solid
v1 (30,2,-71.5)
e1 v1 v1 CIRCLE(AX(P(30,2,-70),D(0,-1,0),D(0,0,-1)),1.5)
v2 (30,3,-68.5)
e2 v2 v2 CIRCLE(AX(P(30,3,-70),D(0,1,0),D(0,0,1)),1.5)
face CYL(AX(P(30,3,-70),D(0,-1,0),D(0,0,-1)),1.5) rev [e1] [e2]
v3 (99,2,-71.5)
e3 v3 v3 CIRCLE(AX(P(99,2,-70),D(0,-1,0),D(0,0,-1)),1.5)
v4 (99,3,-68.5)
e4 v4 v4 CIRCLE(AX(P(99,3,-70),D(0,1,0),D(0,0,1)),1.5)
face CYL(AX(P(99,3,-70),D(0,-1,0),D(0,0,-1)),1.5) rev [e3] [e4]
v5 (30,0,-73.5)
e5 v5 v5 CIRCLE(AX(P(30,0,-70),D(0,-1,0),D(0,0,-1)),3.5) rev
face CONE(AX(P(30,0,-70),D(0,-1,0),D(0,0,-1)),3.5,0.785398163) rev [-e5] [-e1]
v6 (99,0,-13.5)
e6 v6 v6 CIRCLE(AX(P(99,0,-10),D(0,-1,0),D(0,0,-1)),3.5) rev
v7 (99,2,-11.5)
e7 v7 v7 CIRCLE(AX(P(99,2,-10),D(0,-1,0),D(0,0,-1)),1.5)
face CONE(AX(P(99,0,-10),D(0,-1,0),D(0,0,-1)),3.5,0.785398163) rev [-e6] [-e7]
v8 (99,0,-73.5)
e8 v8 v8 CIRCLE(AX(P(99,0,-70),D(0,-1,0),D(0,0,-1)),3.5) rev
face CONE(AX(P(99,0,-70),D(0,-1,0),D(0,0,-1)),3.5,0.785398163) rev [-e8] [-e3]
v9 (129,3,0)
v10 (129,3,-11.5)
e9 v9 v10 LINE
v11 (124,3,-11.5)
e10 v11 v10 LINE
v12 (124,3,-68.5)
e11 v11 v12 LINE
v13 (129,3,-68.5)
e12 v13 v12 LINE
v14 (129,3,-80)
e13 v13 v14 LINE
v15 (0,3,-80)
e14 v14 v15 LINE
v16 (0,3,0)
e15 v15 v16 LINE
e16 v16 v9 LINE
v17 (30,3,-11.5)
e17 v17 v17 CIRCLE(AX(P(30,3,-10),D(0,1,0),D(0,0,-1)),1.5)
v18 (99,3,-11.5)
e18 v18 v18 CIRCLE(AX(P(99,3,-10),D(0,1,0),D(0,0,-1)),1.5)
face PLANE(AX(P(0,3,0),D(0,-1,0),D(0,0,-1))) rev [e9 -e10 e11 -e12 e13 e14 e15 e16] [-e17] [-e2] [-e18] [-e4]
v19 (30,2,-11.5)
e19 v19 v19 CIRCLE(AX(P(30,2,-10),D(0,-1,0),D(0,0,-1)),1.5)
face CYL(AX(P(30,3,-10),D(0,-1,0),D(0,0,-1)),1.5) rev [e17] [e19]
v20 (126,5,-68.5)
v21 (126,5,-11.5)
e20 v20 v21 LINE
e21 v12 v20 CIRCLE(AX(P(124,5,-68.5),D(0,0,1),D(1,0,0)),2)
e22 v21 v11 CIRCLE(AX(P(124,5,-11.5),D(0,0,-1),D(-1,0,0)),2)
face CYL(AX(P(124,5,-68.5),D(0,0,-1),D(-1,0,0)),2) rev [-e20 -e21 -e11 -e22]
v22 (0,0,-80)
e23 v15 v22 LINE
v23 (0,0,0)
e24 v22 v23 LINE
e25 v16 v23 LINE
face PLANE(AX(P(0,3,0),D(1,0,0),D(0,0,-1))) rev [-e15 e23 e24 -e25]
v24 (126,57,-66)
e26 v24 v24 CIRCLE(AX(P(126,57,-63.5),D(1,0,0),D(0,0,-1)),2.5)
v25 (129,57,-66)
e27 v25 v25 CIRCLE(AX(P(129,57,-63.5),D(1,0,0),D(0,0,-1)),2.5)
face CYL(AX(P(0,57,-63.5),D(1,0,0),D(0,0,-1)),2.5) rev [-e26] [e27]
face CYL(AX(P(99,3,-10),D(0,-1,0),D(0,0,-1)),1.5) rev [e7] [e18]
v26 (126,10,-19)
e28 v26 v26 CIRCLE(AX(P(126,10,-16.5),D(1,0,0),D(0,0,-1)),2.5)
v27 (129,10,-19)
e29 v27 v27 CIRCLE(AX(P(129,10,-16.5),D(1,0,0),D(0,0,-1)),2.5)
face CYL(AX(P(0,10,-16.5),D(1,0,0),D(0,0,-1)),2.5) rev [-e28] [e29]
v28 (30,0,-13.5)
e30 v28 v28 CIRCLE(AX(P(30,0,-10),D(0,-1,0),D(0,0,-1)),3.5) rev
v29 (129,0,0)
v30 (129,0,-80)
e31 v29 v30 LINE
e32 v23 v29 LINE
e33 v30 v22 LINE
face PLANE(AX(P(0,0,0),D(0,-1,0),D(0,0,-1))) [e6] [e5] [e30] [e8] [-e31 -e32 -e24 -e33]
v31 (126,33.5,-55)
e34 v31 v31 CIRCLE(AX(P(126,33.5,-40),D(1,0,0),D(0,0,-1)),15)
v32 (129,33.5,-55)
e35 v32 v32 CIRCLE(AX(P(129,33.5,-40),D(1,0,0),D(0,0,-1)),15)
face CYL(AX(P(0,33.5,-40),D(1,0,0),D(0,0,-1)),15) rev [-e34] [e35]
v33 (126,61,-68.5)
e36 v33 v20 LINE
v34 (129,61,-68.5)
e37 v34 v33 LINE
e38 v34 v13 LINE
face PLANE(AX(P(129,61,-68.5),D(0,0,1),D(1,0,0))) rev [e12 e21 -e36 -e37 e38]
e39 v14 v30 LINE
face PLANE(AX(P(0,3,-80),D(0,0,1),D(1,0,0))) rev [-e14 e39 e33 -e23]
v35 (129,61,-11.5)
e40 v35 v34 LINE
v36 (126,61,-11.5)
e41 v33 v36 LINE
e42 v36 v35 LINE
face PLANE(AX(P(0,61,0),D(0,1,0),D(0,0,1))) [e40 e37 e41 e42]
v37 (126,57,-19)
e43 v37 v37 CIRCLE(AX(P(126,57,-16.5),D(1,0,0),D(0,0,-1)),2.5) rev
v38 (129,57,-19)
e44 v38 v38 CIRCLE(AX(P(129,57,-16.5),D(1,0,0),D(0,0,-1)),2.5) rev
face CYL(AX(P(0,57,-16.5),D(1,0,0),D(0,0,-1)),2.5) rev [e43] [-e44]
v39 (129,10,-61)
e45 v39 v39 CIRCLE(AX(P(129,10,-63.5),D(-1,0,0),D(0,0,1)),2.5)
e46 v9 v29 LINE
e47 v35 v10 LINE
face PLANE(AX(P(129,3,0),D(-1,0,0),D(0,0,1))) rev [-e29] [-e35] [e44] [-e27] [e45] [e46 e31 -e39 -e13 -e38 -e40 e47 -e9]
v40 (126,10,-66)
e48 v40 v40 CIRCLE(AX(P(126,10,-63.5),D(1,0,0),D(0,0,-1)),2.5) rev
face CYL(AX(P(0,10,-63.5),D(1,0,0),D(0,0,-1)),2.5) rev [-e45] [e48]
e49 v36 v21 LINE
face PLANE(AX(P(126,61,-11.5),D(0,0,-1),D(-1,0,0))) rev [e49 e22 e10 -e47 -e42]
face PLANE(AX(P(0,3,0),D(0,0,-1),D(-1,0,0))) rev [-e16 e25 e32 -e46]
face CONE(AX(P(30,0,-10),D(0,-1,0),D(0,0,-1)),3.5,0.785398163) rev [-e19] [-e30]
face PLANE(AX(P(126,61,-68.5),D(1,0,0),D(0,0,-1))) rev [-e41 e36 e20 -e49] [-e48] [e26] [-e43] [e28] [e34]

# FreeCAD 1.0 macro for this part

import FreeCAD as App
import Part
import Sketcher

V = App.Vector
Q = App.Units.Quantity


def edges_at(feature, points):
    """Names of the edges that pass closest to the given points."""
    edges = feature.Shape.Edges
    near = lambda p: min(range(len(edges)), key=lambda i: edges[i].distToShape(Part.Vertex(*p))[0])
    return sorted({f"Edge{near(p) + 1}" for p in points})


def add_polygon(sketch, points):
    """Adds a closed chain of lines whose ends are joined by coincident constraints."""
    first, n = sketch.GeometryCount, len(points)
    for a, b in zip(points, points[1:] + points[:1]):
        sketch.addGeometry(Part.LineSegment(App.Vector(*a, 0), App.Vector(*b, 0)), False)
    for i in range(n):
        sketch.addConstraint(Sketcher.Constraint("Coincident", first + i, 2, first + (i + 1) % n, 1))

doc = App.newDocument("Part")
body = doc.addObject("PartDesign::Body", "Body")

# Sketch on XZ plane
sketch1 = doc.addObject("Sketcher::SketchObject", "Sketch")
body.addObject(sketch1)
sketch1.AttachmentSupport = (doc.XZ_Plane, [""])
sketch1.MapMode = "FlatFace"
add_polygon(sketch1, [(0, -80), (0, 0), (129, 0), (129, -80)])  # lines 0-3
sketch1.addGeometry(Part.Circle(V(30, -10, 0), V(0, 0, 1), 1.5), False)  # 4
sketch1.addGeometry(Part.Circle(V(99, -10, 0), V(0, 0, 1), 1.5), False)  # 5
sketch1.addGeometry(Part.Circle(V(30, -70, 0), V(0, 0, 1), 1.5), False)  # 6
sketch1.addGeometry(Part.Circle(V(99, -70, 0), V(0, 0, 1), 1.5), False)  # 7
sketch1.addConstraint(Sketcher.Constraint("Vertical", 0))
sketch1.addConstraint(Sketcher.Constraint("Horizontal", 1))
sketch1.addConstraint(Sketcher.Constraint("Vertical", 2))
sketch1.addConstraint(Sketcher.Constraint("Horizontal", 3))
sketch1.addConstraint(Sketcher.Constraint("Coincident", 0, 2, -1, 1))
sketch1.addConstraint(Sketcher.Constraint("Equal", 4, 5))
sketch1.addConstraint(Sketcher.Constraint("Equal", 5, 6))
sketch1.addConstraint(Sketcher.Constraint("Equal", 6, 7))
sketch1.addConstraint(Sketcher.Constraint("Horizontal", 4, 3, 5, 3))
sketch1.addConstraint(Sketcher.Constraint("Horizontal", 6, 3, 7, 3))
sketch1.addConstraint(Sketcher.Constraint("Vertical", 4, 3, 6, 3))
sketch1.addConstraint(Sketcher.Constraint("Vertical", 5, 3, 7, 3))
sketch1.addConstraint(Sketcher.Constraint("Diameter", 4, Q("3 mm")))
sketch1.addConstraint(Sketcher.Constraint("DistanceX", 1, 1, 1, 2, Q("129 mm")))
sketch1.addConstraint(Sketcher.Constraint("DistanceY", 0, 1, 0, 2, Q("80 mm")))
sketch1.addConstraint(Sketcher.Constraint("DistanceX", -1, 1, 4, 3, Q("30 mm")))
sketch1.addConstraint(Sketcher.Constraint("DistanceY", 4, 3, -1, 1, Q("10 mm")))
sketch1.addConstraint(Sketcher.Constraint("DistanceX", -1, 1, 5, 3, Q("99 mm")))
sketch1.addConstraint(Sketcher.Constraint("DistanceY", 6, 3, -1, 1, Q("70 mm")))
pad1 = doc.addObject("PartDesign::Pad", "Pad")
body.addObject(pad1)
pad1.Profile = sketch1
pad1.Length = 3
pad1.Reversed = True

# Sketch on XZ plane
sketch2 = doc.addObject("Sketcher::SketchObject", "Sketch001")
body.addObject(sketch2)
sketch2.AttachmentSupport = (doc.XZ_Plane, [""])
sketch2.MapMode = "FlatFace"
sketch2.AttachmentOffset = App.Placement(V(0, 0, -3), App.Rotation())
add_polygon(sketch2, [(126, -68.5), (126, -11.5), (129, -11.5), (129, -68.5)])  # lines 0-3
sketch2.addConstraint(Sketcher.Constraint("Vertical", 0))
sketch2.addConstraint(Sketcher.Constraint("Horizontal", 1))
sketch2.addConstraint(Sketcher.Constraint("Vertical", 2))
sketch2.addConstraint(Sketcher.Constraint("Horizontal", 3))
sketch2.addConstraint(Sketcher.Constraint("DistanceX", 1, 1, 1, 2, Q("3 mm")))
sketch2.addConstraint(Sketcher.Constraint("DistanceY", 0, 1, 0, 2, Q("57 mm")))
sketch2.addConstraint(Sketcher.Constraint("DistanceX", -1, 1, 0, 2, Q("126 mm")))
sketch2.addConstraint(Sketcher.Constraint("DistanceY", 0, 2, -1, 1, Q("11.5 mm")))
pad2 = doc.addObject("PartDesign::Pad", "Pad001")
body.addObject(pad2)
pad2.Profile = sketch2
pad2.Length = 58
pad2.Reversed = True
doc.recompute()

fillet = doc.addObject("PartDesign::Fillet", "Fillet")
body.addObject(fillet)
fillet.Base = (pad2, edges_at(pad2, [(126, 3, -40)]))
fillet.Radius = 2

# Sketch on YZ plane
sketch3 = doc.addObject("Sketcher::SketchObject", "Sketch002")
body.addObject(sketch3)
sketch3.AttachmentSupport = (doc.YZ_Plane, [""])
sketch3.MapMode = "FlatFace"
sketch3.AttachmentOffset = App.Placement(V(0, 0, 129), App.Rotation())
sketch3.addGeometry(Part.Circle(V(57, -16.5, 0), V(0, 0, 1), 2.5), False)
sketch3.addGeometry(Part.Circle(V(33.5, -40, 0), V(0, 0, 1), 15), False)
sketch3.addGeometry(Part.Circle(V(57, -63.5, 0), V(0, 0, 1), 2.5), False)
sketch3.addGeometry(Part.Circle(V(10, -16.5, 0), V(0, 0, 1), 2.5), False)
sketch3.addGeometry(Part.Circle(V(10, -63.5, 0), V(0, 0, 1), 2.5), False)
sketch3.addConstraint(Sketcher.Constraint("Equal", 0, 2))
sketch3.addConstraint(Sketcher.Constraint("Equal", 2, 3))
sketch3.addConstraint(Sketcher.Constraint("Equal", 3, 4))
sketch3.addConstraint(Sketcher.Constraint("Horizontal", 0, 3, 3, 3))
sketch3.addConstraint(Sketcher.Constraint("Horizontal", 2, 3, 4, 3))
sketch3.addConstraint(Sketcher.Constraint("Vertical", 0, 3, 2, 3))
sketch3.addConstraint(Sketcher.Constraint("Vertical", 3, 3, 4, 3))
sketch3.addConstraint(Sketcher.Constraint("Diameter", 0, Q("5 mm")))
sketch3.addConstraint(Sketcher.Constraint("Diameter", 1, Q("30 mm")))
sketch3.addConstraint(Sketcher.Constraint("DistanceX", -1, 1, 0, 3, Q("57 mm")))
sketch3.addConstraint(Sketcher.Constraint("DistanceY", 1, 3, -1, 1, Q("40 mm")))
sketch3.addConstraint(Sketcher.Constraint("DistanceX", -1, 1, 3, 3, Q("10 mm")))
sketch3.addConstraint(Sketcher.Constraint("DistanceY", 2, 3, 0, 3, Q("47 mm")))
sketch3.addConstraint(Sketcher.Constraint("DistanceY", 0, 3, -1, 1, Q("16.5 mm")))
sketch3.addConstraint(Sketcher.Constraint("DistanceX", -1, 1, 1, 3, Q("33.5 mm")))
pocket1 = doc.addObject("PartDesign::Pocket", "Pocket")
body.addObject(pocket1)
pocket1.Profile = sketch3
pocket1.Type = "ThroughAll"
doc.recompute()

chamfer = doc.addObject("PartDesign::Chamfer", "Chamfer")
body.addObject(chamfer)
chamfer.Base = (pocket1, edges_at(pocket1, [
    (99, 0, -71.5),
    (30, 0, -71.5),
    (99, 0, -8.5),
    (30, 0, -8.5),
]))
chamfer.Size = 2

doc.recompute()
